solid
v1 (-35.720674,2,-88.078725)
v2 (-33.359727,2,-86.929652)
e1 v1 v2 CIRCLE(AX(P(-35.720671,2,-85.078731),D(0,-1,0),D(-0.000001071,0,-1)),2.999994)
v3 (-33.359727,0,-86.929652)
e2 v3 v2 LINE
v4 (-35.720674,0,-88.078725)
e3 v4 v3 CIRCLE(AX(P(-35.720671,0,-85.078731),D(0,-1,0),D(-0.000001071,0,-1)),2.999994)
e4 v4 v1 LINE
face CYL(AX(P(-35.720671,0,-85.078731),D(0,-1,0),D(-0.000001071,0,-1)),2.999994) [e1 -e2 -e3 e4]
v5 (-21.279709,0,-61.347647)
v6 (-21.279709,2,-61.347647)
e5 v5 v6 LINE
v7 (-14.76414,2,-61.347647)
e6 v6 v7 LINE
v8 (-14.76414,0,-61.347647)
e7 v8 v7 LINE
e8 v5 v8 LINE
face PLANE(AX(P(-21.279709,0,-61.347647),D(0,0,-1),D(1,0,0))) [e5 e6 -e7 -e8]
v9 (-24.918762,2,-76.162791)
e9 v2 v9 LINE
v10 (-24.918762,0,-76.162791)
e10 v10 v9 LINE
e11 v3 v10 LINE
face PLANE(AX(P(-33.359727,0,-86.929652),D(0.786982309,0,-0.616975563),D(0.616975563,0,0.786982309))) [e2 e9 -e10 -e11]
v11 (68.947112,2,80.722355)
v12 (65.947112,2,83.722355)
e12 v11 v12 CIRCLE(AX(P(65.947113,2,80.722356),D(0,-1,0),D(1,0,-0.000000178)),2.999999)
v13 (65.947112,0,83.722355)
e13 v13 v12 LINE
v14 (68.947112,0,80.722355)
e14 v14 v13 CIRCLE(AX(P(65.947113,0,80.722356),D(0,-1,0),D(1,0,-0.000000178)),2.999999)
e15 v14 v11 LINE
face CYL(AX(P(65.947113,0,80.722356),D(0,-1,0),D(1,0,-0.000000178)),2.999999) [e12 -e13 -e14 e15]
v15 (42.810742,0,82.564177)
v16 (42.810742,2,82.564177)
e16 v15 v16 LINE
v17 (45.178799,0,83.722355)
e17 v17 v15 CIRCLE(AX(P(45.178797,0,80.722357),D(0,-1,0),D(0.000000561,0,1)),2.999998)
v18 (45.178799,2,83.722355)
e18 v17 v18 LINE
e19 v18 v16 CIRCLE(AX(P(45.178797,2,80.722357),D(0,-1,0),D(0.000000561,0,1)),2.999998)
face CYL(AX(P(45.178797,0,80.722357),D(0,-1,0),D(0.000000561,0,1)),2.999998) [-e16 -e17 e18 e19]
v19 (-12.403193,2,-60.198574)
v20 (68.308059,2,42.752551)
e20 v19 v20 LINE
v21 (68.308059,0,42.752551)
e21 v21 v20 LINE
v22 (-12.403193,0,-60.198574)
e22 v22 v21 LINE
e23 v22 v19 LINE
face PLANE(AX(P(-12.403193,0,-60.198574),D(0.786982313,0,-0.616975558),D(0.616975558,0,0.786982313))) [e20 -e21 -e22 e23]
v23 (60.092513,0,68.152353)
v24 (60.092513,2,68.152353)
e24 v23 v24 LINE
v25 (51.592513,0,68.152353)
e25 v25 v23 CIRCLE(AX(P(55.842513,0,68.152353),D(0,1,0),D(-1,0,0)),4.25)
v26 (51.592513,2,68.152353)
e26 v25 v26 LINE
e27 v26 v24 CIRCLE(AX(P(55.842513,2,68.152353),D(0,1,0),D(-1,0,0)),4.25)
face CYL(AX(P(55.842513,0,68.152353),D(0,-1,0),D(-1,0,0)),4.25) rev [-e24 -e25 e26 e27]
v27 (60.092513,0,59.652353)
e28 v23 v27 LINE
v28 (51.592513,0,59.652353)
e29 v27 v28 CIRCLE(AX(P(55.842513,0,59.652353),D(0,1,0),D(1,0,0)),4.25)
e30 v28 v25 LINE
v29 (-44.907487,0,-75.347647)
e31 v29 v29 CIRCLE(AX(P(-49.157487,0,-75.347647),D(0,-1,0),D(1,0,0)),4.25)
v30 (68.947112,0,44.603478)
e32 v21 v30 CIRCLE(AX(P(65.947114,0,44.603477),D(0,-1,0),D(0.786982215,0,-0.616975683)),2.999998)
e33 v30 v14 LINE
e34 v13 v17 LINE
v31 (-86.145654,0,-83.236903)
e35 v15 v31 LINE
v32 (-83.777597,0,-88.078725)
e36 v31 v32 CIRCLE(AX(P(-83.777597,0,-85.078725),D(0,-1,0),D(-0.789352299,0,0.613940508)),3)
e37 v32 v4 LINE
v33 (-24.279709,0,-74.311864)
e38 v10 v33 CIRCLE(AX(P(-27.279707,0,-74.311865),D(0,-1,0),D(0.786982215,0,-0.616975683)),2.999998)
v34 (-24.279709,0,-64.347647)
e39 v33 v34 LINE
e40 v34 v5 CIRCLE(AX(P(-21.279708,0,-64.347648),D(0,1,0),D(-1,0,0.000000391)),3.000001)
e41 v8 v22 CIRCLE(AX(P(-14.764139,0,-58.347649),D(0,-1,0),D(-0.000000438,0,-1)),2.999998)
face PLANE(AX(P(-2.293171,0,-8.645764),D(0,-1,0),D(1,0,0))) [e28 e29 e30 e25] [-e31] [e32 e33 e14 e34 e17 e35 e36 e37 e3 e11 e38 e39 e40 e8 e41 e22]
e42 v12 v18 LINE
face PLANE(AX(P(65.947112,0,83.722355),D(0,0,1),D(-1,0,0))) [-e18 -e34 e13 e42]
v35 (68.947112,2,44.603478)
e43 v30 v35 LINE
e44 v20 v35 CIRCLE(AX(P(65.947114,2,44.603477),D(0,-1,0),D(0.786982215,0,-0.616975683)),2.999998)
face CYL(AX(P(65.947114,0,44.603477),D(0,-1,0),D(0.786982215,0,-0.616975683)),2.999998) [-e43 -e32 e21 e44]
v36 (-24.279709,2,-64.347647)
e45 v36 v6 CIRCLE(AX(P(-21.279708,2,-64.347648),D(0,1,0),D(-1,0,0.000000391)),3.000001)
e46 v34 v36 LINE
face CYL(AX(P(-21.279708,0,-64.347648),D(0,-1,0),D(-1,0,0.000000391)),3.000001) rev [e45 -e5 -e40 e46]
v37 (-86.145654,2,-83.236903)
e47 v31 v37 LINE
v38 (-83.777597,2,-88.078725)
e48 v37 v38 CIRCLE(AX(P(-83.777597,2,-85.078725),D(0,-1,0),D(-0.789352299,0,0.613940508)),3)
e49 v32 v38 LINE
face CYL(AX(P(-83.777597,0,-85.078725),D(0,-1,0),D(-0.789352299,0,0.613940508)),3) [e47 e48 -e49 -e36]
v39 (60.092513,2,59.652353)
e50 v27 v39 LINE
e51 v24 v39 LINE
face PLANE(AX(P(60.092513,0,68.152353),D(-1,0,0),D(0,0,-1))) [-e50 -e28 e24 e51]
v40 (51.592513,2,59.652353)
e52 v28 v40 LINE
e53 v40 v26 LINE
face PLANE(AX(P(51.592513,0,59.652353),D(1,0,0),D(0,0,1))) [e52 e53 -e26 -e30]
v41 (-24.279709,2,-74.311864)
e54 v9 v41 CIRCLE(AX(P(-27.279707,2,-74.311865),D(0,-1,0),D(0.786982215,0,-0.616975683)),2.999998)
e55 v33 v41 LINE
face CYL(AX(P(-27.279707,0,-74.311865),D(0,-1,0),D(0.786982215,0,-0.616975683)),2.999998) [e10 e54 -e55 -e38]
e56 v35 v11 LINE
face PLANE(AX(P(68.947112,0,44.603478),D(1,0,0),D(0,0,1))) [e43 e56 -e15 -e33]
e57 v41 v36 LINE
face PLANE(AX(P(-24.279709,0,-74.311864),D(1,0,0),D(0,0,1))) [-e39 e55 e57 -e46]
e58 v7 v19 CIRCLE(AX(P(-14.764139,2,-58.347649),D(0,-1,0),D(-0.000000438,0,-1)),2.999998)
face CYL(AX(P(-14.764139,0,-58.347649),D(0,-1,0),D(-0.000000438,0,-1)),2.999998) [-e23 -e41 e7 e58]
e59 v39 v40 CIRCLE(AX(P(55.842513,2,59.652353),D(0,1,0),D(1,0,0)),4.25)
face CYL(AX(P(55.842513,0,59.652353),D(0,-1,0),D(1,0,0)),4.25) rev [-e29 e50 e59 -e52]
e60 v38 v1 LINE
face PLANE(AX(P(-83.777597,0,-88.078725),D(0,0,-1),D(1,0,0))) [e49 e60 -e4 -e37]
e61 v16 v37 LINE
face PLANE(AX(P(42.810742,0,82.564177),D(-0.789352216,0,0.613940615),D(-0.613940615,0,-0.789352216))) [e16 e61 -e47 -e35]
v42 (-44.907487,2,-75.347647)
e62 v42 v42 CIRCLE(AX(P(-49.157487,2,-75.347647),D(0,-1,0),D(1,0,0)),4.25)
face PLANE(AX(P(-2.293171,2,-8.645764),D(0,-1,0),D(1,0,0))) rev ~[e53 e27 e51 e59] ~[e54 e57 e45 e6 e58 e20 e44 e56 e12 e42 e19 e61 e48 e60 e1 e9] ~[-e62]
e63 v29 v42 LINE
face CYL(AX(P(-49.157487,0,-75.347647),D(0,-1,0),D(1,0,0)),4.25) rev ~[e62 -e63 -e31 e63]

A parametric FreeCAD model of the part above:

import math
import FreeCAD as App
import Part
import Sketcher
from FreeCAD import Vector

doc = App.newDocument("Part")
params = doc.addObject("Spreadsheet::Sheet", "Params")
for row, (alias, value) in enumerate([
    ("sketch1_radius", "3 mm"),
    ("sketch1_diameter", "8.5 mm"),
    ("sketch1_height", "8.5 mm"),
    ("pad1_length", "2 mm"),
], start=1):
    params.set(f"A{row}", alias)
    params.set(f"B{row}", "=" + value)
    params.setAlias(f"B{row}", alias)

body = doc.addObject("PartDesign::Body", "Body")

# Sketch on XZ plane
sketch1 = body.newObject("Sketcher::SketchObject", "Sketch")
sketch1.AttachmentSupport = (doc.getObject("XZ_Plane"), [""])
sketch1.MapMode = "FlatFace"
sketch1.addGeometry(Part.ArcOfCircle(Part.Circle(Vector(-83.8, -85.1, 0), Vector(0, 0, 1), 3), math.radians(142), math.radians(270)), False)
sketch1.addGeometry(Part.LineSegment(Vector(-83.8, -88.1, 0), Vector(-35.7, -88.1, 0)), False)
sketch1.addGeometry(Part.ArcOfCircle(Part.Circle(Vector(-35.7, -85.1, 0), Vector(0, 0, 1), 3), math.radians(-90), math.radians(-38)), False)
sketch1.addGeometry(Part.LineSegment(Vector(-33.4, -86.9, 0), Vector(-24.9, -76.2, 0)), False)
sketch1.addGeometry(Part.ArcOfCircle(Part.Circle(Vector(-27.3, -74.3, 0), Vector(0, 0, 1), 3), math.radians(-38), math.radians(0)), False)
sketch1.addGeometry(Part.LineSegment(Vector(-24.3, -74.3, 0), Vector(-24.3, -64.3, 0)), False)
sketch1.addGeometry(Part.ArcOfCircle(Part.Circle(Vector(-21.3, -64.3, 0), Vector(0, 0, 1), 3), math.radians(90), math.radians(180)), False)
sketch1.addGeometry(Part.LineSegment(Vector(-21.3, -61.3, 0), Vector(-14.8, -61.3, 0)), False)
sketch1.addGeometry(Part.ArcOfCircle(Part.Circle(Vector(-14.8, -58.3, 0), Vector(0, 0, 1), 3), math.radians(-90), math.radians(-38)), False)
sketch1.addGeometry(Part.LineSegment(Vector(-12.4, -60.2, 0), Vector(68.3, 42.8, 0)), False)
sketch1.addGeometry(Part.ArcOfCircle(Part.Circle(Vector(65.9, 44.6, 0), Vector(0, 0, 1), 3), math.radians(-38), math.radians(0)), False)
sketch1.addGeometry(Part.LineSegment(Vector(68.9, 44.6, 0), Vector(68.9, 80.7, 0)), False)
sketch1.addGeometry(Part.ArcOfCircle(Part.Circle(Vector(65.9, 80.7, 0), Vector(0, 0, 1), 3), math.radians(0), math.radians(90)), False)
sketch1.addGeometry(Part.LineSegment(Vector(65.9, 83.7, 0), Vector(45.2, 83.7, 0)), False)
sketch1.addGeometry(Part.ArcOfCircle(Part.Circle(Vector(45.2, 80.7, 0), Vector(0, 0, 1), 3), math.radians(90), math.radians(142)), False)
sketch1.addGeometry(Part.LineSegment(Vector(42.8, 82.6, 0), Vector(-86.1, -83.2, 0)), False)
sketch1.addGeometry(Part.Circle(Vector(-49.2, -75.3, 0), Vector(0, 0, 1), 4.2), False)
sketch1.addGeometry(Part.LineSegment(Vector(60.1, 68.2, 0), Vector(60.1, 59.7, 0)), False)
sketch1.addGeometry(Part.ArcOfCircle(Part.Circle(Vector(55.8, 59.7, 0), Vector(0, 0, 1), 4.2), math.radians(180), math.radians(360)), False)
sketch1.addGeometry(Part.LineSegment(Vector(51.6, 59.7, 0), Vector(51.6, 68.2, 0)), False)
sketch1.addGeometry(Part.ArcOfCircle(Part.Circle(Vector(55.8, 68.2, 0), Vector(0, 0, 1), 4.2), math.radians(0), math.radians(180)), False)
sketch1.addConstraint(Sketcher.Constraint("Tangent", 0, 2, 1, 1))
sketch1.addConstraint(Sketcher.Constraint("Tangent", 1, 2, 2, 1))
sketch1.addConstraint(Sketcher.Constraint("Tangent", 2, 2, 3, 1))
sketch1.addConstraint(Sketcher.Constraint("Tangent", 3, 2, 4, 1))
sketch1.addConstraint(Sketcher.Constraint("Tangent", 4, 2, 5, 1))
sketch1.addConstraint(Sketcher.Constraint("Tangent", 5, 2, 6, 2))
sketch1.addConstraint(Sketcher.Constraint("Tangent", 6, 1, 7, 1))
sketch1.addConstraint(Sketcher.Constraint("Tangent", 7, 2, 8, 1))
sketch1.addConstraint(Sketcher.Constraint("Tangent", 8, 2, 9, 1))
sketch1.addConstraint(Sketcher.Constraint("Tangent", 9, 2, 10, 1))
sketch1.addConstraint(Sketcher.Constraint("Tangent", 10, 2, 11, 1))
sketch1.addConstraint(Sketcher.Constraint("Tangent", 11, 2, 12, 1))
sketch1.addConstraint(Sketcher.Constraint("Tangent", 12, 2, 13, 1))
sketch1.addConstraint(Sketcher.Constraint("Tangent", 13, 2, 14, 1))
sketch1.addConstraint(Sketcher.Constraint("Tangent", 14, 2, 15, 1))
sketch1.addConstraint(Sketcher.Constraint("Tangent", 15, 2, 0, 1))
sketch1.addConstraint(Sketcher.Constraint("Tangent", 17, 2, 18, 2))
sketch1.addConstraint(Sketcher.Constraint("Tangent", 18, 1, 19, 1))
sketch1.addConstraint(Sketcher.Constraint("Tangent", 19, 2, 20, 2))
sketch1.addConstraint(Sketcher.Constraint("Tangent", 20, 1, 17, 1))
sketch1.addConstraint(Sketcher.Constraint("Horizontal", 1))
sketch1.addConstraint(Sketcher.Constraint("Vertical", 5))
sketch1.addConstraint(Sketcher.Constraint("Horizontal", 7))
sketch1.addConstraint(Sketcher.Constraint("Vertical", 11))
sketch1.addConstraint(Sketcher.Constraint("Horizontal", 13))
sketch1.addConstraint(Sketcher.Constraint("Vertical", 17))
sketch1.addConstraint(Sketcher.Constraint("Vertical", 19))
sketch1.addConstraint(Sketcher.Constraint("Equal", 0, 4))
sketch1.addConstraint(Sketcher.Constraint("Equal", 0, 6))
sketch1.addConstraint(Sketcher.Constraint("Equal", 4, 8))
sketch1.addConstraint(Sketcher.Constraint("Equal", 8, 10))
sketch1.addConstraint(Sketcher.Constraint("Equal", 10, 12))
sketch1.addConstraint(Sketcher.Constraint("Equal", 12, 14))
sketch1.addConstraint(Sketcher.Constraint("Equal", 16, 18))
sketch1.addConstraint(Sketcher.Constraint("Parallel", 3, 9))
sketch1.addConstraint(Sketcher.Constraint("Radius", 0, 3.0))
sketch1.addConstraint(Sketcher.Constraint("Diameter", 16, 8.5))
sketch1.addConstraint(Sketcher.Constraint("DistanceY", 17, 2, 17, 1, 8.5))
sketch1.addConstraint(Sketcher.Constraint("DistanceY", 16, 3, 6, 3, 10.999999))
sketch1.addConstraint(Sketcher.Constraint("DistanceY", 6, 3, 18, 3, 124.000001))
sketch1.addConstraint(Sketcher.Constraint("DistanceY", 20, 3, 11, 2, 12.570002))
sketch1.addConstraint(Sketcher.Constraint("Radius", 2, 2.999994))
sketch1.addConstraint(Sketcher.Constraint("Distance", 3, 13.681198))
sketch1.addConstraint(Sketcher.Constraint("DistanceX", 7, 1, 7, 2, 6.515569))
sketch1.addConstraint(Sketcher.Constraint("DistanceX", -1, 1, 13, 2, 45.178799))
sketch1.addConstraint(Sketcher.Constraint("DistanceY", 0, 3, 10, 3, 129.682202))
sketch1.addConstraint(Sketcher.Constraint("DistanceX", 18, 3, 10, 3, 10.104601))
sketch1.addConstraint(Sketcher.Constraint("Distance", 15, 210.047019))
sketch1.addConstraint(Sketcher.Constraint("DistanceX", 1, 1, 1, 2, 48.056923))
sketch1.addConstraint(Sketcher.Constraint("DistanceX", 13, 2, 13, 1, 20.768313))
sketch1.addConstraint(Sketcher.Constraint("DistanceY", 5, 1, 5, 2, 9.964217))
sketch1.addConstraint(Sketcher.Constraint("DistanceY", 2, 3, -1, 1, 85.078731))
sketch1.addConstraint(Sketcher.Constraint("DistanceX", 16, 3, 4, 3, 21.87778))
sketch1.setExpression("Constraints[35]", "Params.sketch1_radius")
sketch1.setExpression("Constraints[36]", "Params.sketch1_diameter")
sketch1.setExpression("Constraints[37]", "Params.sketch1_height")
pad1 = body.newObject("PartDesign::Pad", "Pad")
pad1.Profile = sketch1
pad1.setExpression("Length", "Params.pad1_length")
pad1.Reversed = True

doc.recompute()
